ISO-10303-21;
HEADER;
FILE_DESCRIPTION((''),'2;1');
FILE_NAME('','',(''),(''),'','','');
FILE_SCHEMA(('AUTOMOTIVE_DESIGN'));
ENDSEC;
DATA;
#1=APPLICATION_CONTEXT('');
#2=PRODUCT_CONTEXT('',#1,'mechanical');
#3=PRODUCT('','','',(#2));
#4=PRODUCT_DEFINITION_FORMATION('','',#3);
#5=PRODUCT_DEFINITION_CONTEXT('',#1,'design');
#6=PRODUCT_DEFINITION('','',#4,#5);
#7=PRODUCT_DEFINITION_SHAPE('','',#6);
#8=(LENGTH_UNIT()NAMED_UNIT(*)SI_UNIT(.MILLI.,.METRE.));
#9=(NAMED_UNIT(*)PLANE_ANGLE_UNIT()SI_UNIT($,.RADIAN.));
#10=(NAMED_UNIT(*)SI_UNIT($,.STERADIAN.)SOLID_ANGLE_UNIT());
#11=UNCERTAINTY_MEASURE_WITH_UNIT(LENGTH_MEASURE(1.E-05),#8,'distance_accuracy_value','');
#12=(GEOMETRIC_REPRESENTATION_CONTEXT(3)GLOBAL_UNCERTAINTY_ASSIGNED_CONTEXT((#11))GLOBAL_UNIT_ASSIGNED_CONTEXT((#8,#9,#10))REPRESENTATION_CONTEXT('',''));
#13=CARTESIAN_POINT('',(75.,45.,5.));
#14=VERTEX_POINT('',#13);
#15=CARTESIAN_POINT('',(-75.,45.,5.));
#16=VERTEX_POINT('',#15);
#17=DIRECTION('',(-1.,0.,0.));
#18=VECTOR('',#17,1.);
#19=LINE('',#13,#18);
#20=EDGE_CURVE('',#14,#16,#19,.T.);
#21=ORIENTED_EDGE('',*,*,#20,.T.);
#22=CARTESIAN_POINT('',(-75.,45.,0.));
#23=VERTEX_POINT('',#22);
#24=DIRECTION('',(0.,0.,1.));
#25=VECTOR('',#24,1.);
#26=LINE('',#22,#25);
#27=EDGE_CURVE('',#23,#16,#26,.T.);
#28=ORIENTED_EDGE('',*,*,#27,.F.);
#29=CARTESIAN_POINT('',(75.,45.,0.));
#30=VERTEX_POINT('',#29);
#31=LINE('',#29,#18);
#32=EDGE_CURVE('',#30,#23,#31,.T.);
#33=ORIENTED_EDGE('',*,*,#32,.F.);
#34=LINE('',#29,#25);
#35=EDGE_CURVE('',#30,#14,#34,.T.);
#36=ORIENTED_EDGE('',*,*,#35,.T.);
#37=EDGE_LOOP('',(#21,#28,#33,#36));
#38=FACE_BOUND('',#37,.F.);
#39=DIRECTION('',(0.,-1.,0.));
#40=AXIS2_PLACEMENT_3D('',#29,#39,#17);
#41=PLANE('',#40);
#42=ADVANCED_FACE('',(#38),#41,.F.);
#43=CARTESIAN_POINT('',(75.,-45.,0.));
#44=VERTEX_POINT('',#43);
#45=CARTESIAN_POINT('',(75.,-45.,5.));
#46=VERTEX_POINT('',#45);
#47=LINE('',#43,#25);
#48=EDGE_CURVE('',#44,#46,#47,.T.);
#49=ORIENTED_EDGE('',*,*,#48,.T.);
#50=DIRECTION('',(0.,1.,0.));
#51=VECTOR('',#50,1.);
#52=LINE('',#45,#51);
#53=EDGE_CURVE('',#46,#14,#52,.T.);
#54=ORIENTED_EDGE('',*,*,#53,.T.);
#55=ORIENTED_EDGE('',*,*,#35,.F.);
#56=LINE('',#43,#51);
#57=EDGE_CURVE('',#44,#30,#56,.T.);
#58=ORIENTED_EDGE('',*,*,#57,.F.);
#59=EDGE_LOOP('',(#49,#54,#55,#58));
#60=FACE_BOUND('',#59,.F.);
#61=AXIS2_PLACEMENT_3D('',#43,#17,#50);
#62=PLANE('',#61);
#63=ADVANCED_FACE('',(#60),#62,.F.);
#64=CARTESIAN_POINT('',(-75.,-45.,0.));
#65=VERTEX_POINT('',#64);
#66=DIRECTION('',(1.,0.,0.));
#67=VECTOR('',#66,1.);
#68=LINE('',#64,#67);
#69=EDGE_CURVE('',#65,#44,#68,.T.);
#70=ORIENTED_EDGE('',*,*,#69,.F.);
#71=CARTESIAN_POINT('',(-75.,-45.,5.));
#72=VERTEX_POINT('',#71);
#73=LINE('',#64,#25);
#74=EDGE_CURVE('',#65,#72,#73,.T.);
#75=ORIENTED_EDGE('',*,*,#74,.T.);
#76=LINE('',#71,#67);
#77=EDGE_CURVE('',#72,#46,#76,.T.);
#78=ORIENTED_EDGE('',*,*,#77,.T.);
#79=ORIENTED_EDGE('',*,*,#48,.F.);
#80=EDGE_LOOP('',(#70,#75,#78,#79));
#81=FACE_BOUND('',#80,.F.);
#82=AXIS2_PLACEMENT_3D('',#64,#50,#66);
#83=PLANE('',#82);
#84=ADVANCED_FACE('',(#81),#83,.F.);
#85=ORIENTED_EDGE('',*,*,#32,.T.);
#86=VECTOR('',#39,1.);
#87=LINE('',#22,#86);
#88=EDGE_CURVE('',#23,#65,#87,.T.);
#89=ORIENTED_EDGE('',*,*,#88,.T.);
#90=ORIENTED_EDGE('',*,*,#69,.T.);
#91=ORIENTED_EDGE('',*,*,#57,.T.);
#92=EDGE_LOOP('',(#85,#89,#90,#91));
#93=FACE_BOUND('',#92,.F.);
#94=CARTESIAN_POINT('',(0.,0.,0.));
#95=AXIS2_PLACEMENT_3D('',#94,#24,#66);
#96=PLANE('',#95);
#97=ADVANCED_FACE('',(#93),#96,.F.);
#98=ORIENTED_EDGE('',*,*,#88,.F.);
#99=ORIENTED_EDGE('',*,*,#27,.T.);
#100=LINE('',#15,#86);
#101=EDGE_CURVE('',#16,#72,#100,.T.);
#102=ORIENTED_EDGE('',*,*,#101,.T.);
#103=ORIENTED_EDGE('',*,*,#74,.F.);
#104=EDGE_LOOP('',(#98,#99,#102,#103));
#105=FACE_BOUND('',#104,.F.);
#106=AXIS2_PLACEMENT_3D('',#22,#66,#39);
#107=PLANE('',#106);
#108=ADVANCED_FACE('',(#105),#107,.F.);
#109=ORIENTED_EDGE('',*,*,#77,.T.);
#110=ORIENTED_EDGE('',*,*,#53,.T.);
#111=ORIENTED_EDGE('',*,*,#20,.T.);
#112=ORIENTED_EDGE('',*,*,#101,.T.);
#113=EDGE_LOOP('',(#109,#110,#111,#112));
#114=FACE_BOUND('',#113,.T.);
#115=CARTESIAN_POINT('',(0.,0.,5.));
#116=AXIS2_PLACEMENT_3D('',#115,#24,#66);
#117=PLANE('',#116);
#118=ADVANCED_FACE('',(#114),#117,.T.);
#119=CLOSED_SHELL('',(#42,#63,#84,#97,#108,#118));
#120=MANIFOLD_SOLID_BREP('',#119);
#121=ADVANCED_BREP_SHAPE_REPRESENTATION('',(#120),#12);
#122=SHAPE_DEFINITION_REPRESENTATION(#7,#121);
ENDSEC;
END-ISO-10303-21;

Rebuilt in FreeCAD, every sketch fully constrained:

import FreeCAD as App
import Part
import Sketcher

V = App.Vector
Q = App.Units.Quantity


def add_polygon(sketch, points):
    """Adds a closed chain of lines whose ends are joined by coincident constraints."""
    first, n = sketch.GeometryCount, len(points)
    for a, b in zip(points, points[1:] + points[:1]):
        sketch.addGeometry(Part.LineSegment(App.Vector(*a, 0), App.Vector(*b, 0)), False)
    for i in range(n):
        sketch.addConstraint(Sketcher.Constraint("Coincident", first + i, 2, first + (i + 1) % n, 1))

doc = App.newDocument("Part")
body = doc.addObject("PartDesign::Body", "Body")

sketch1 = body.newObject("Sketcher::SketchObject", "Sketch")
sketch1.AttachmentSupport = (doc.getObject("XY_Plane"), [""])
sketch1.MapMode = "FlatFace"
add_polygon(sketch1, [(-75, 45), (-75, -45), (75, -45), (75, 45)])
sketch1.addConstraint([
    Sketcher.Constraint("Vertical", 0),
    Sketcher.Constraint("Horizontal", 1),
    Sketcher.Constraint("Vertical", 2),
    Sketcher.Constraint("Horizontal", 3),
    Sketcher.Constraint("Symmetric", 0, 2, 2, 2, -1, 1),
    Sketcher.Constraint("DistanceX", 1, 1, 1, 2, Q("150 mm")),
    Sketcher.Constraint("DistanceY", 0, 2, 0, 1, Q("90 mm")),
])
pad1 = body.newObject("PartDesign::Pad", "Pad")
pad1.Profile = sketch1
pad1.Length = 5

doc.recompute()
